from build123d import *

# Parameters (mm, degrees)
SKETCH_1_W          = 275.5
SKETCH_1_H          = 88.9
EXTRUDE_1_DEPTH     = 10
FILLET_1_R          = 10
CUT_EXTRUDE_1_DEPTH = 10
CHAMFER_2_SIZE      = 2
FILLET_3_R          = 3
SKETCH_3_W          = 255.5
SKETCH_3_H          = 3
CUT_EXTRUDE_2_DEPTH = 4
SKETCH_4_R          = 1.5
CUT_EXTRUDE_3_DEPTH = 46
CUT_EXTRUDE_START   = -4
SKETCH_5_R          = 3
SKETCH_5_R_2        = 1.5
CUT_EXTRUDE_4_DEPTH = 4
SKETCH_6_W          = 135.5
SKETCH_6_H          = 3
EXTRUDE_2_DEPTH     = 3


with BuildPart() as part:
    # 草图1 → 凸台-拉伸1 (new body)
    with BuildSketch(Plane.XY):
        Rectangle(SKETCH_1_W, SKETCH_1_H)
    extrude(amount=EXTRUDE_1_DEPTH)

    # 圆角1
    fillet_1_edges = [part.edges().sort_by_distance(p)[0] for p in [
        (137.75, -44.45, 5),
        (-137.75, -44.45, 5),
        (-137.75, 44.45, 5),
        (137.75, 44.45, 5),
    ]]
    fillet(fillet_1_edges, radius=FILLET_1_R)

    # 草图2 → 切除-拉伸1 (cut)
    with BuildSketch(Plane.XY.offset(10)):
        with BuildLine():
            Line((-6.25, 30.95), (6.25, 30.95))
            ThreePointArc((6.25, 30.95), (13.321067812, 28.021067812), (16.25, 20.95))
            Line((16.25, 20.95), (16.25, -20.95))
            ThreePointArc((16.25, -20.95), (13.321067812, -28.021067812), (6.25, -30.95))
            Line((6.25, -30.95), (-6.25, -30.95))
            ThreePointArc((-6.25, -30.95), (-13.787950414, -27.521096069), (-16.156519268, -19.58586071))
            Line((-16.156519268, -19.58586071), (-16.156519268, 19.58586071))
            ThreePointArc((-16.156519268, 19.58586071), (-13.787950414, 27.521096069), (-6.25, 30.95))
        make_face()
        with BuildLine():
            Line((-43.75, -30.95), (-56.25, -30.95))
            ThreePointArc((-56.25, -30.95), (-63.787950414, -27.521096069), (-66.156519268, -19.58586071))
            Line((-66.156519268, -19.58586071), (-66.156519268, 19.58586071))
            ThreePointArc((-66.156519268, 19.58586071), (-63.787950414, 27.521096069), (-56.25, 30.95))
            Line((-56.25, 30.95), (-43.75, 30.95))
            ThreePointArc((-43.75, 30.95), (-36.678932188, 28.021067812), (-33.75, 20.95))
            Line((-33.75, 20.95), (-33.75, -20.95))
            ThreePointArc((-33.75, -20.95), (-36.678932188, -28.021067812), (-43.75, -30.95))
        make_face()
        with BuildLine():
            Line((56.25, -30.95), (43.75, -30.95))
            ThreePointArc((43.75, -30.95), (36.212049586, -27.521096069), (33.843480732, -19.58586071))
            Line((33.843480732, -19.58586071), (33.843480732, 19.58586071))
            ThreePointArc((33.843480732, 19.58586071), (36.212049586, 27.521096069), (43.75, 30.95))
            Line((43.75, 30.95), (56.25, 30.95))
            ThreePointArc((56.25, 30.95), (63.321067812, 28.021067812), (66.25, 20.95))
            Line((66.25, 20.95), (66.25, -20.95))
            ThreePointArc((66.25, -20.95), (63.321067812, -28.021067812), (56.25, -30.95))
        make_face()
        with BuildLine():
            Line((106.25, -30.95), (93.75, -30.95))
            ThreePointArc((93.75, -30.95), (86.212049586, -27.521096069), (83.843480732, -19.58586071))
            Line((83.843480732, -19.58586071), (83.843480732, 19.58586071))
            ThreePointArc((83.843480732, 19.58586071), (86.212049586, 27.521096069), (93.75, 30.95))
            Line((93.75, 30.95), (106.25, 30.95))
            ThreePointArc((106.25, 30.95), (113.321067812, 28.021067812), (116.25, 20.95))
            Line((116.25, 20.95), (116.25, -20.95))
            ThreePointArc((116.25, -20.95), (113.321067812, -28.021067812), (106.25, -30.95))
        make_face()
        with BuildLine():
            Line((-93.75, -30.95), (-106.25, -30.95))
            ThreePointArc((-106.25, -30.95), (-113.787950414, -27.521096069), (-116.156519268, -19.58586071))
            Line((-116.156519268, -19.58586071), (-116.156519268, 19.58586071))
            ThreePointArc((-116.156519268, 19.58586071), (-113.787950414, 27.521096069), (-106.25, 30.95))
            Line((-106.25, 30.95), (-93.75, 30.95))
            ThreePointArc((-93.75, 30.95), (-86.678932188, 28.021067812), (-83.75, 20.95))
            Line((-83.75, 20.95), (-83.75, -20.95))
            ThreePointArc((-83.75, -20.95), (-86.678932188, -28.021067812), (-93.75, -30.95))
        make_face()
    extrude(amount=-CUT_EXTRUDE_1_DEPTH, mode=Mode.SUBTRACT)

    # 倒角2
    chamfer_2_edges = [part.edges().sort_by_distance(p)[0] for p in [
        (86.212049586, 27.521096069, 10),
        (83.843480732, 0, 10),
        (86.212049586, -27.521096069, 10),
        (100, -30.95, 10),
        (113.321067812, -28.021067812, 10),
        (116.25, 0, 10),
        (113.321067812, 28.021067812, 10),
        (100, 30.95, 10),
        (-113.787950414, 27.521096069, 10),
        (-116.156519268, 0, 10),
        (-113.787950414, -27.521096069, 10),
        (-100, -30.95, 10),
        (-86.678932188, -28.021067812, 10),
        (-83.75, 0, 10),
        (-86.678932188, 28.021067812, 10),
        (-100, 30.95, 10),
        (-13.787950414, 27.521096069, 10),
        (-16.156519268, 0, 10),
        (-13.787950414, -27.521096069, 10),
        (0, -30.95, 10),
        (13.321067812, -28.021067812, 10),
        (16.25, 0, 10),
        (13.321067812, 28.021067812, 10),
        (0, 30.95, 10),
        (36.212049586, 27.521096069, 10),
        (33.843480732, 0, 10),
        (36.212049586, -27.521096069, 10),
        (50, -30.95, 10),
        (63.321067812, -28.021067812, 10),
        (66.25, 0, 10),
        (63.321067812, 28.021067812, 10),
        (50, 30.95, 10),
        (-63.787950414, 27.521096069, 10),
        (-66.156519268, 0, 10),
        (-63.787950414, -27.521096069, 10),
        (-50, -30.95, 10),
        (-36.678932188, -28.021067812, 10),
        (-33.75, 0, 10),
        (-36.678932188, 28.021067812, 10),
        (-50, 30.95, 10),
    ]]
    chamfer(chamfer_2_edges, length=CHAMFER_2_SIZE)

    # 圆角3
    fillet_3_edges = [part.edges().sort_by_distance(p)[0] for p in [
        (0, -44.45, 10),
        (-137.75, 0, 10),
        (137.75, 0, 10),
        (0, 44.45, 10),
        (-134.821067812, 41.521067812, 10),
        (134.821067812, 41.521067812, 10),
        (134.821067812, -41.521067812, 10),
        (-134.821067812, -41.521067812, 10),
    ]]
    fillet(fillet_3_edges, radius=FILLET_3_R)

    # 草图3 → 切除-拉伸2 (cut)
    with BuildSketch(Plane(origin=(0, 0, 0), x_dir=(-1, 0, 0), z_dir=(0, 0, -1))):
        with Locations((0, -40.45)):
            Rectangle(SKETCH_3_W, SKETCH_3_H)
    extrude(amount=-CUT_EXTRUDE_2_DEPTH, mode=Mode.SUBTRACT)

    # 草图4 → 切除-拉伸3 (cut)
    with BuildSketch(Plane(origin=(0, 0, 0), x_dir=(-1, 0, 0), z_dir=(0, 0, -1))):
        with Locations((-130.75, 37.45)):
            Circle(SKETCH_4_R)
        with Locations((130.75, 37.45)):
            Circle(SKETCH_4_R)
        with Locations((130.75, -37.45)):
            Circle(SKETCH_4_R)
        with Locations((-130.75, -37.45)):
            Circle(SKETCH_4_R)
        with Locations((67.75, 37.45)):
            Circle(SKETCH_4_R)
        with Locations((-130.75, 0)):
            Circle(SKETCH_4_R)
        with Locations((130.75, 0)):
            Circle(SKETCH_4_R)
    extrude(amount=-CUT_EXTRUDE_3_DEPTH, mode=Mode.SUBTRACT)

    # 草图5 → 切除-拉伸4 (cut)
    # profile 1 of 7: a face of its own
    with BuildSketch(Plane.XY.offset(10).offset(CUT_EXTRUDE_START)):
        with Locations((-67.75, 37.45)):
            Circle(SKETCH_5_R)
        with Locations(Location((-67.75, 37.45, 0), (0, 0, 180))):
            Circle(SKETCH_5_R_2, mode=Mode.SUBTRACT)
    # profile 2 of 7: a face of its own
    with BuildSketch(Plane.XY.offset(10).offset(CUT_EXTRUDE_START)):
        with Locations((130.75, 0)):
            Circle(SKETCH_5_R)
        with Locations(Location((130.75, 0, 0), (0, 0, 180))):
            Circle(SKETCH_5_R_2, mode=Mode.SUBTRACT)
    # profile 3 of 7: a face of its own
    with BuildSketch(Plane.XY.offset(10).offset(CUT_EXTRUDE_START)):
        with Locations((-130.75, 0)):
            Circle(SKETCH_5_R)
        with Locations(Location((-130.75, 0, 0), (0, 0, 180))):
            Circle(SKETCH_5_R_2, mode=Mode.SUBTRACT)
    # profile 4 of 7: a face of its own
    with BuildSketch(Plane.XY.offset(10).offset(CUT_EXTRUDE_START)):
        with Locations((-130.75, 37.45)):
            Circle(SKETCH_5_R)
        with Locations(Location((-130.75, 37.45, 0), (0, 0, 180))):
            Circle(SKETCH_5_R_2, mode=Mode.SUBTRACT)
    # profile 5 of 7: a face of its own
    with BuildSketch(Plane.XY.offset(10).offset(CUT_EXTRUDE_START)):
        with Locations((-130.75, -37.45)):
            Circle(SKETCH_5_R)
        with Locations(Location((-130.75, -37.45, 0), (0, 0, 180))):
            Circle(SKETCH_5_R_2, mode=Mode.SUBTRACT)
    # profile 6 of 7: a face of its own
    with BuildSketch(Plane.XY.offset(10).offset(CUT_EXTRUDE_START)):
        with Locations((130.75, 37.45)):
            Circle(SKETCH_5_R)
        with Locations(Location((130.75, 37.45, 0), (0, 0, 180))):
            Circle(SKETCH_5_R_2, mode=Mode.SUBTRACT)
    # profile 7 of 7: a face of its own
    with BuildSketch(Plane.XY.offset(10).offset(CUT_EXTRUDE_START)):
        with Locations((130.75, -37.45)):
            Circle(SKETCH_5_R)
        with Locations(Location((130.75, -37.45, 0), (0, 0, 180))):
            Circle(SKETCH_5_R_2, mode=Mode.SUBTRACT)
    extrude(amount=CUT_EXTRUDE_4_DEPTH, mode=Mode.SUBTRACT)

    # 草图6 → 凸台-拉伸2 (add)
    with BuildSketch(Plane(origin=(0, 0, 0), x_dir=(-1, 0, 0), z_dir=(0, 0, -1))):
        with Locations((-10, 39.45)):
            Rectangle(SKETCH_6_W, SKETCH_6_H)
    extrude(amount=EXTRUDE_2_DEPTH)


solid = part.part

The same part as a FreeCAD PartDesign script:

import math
import FreeCAD as App
import Part
import Sketcher

V = App.Vector


def edges_at(feature, points):
    """Names of the edges that pass closest to the given points."""
    edges = feature.Shape.Edges
    near = lambda p: min(range(len(edges)), key=lambda i: edges[i].distToShape(Part.Vertex(*p))[0])
    return sorted({f"Edge{near(p) + 1}" for p in points})

doc = App.newDocument("Part")
body = doc.addObject("PartDesign::Body", "Body")

sketch1 = doc.addObject("Sketcher::SketchObject", "Sketch")
body.addObject(sketch1)
sketch1.AttachmentSupport = (doc.XY_Plane, [""])
sketch1.MapMode = "FlatFace"
sketch1.addGeometry([
    Part.LineSegment(V(-138, 44, 0), V(-138, -44, 0)),
    Part.LineSegment(V(-138, -44, 0), V(138, -44, 0)),
    Part.LineSegment(V(138, -44, 0), V(138, 44, 0)),
    Part.LineSegment(V(138, 44, 0), V(-138, 44, 0)),
], False)
sketch1.addConstraint([
    Sketcher.Constraint("Coincident", 0, 2, 1, 1),
    Sketcher.Constraint("Coincident", 1, 2, 2, 1),
    Sketcher.Constraint("Coincident", 2, 2, 3, 1),
    Sketcher.Constraint("Coincident", 3, 2, 0, 1),
    Sketcher.Constraint("Vertical", 0),
    Sketcher.Constraint("Horizontal", 1),
    Sketcher.Constraint("Vertical", 2),
    Sketcher.Constraint("Horizontal", 3),
    Sketcher.Constraint("Symmetric", 0, 2, 2, 2, -1, 1),
    Sketcher.Constraint("DistanceX", 1, 1, 1, 2, 275.5),
    Sketcher.Constraint("DistanceY", 0, 2, 0, 1, 88.9),
])
pad1 = doc.addObject("PartDesign::Pad", "Pad")
body.addObject(pad1)
pad1.Profile = sketch1
pad1.Length = 10
doc.recompute()

fillet = doc.addObject("PartDesign::Fillet", "Fillet")
body.addObject(fillet)
fillet.Base = (pad1, edges_at(pad1, [
    (137.75, -44.45, 5),
    (-137.75, -44.45, 5),
    (-137.75, 44.45, 5),
    (137.75, 44.45, 5),
]))
fillet.Radius = 10

sketch2 = doc.addObject("Sketcher::SketchObject", "Sketch001")
body.addObject(sketch2)
sketch2.AttachmentSupport = (doc.XY_Plane, [""])
sketch2.MapMode = "FlatFace"
sketch2.AttachmentOffset = App.Placement(V(0, 0, 10), App.Rotation())
sketch2.addGeometry([
    Part.LineSegment(V(6, 31, 0), V(-6, 31, 0)),
    Part.ArcOfCircle(Part.Circle(V(-6, 21, 0), V(0, 0, 1), 10), math.radians(90), math.radians(188)),
    Part.LineSegment(V(-16, 20, 0), V(-16, -20, 0)),
    Part.ArcOfCircle(Part.Circle(V(-6, -21, 0), V(0, 0, 1), 10), math.radians(172), math.radians(270)),
    Part.LineSegment(V(-6, -31, 0), V(6, -31, 0)),
    Part.ArcOfCircle(Part.Circle(V(6, -21, 0), V(0, 0, 1), 10), math.radians(-90), math.radians(0)),
    Part.LineSegment(V(16, -21, 0), V(16, 21, 0)),
    Part.ArcOfCircle(Part.Circle(V(6, 21, 0), V(0, 0, 1), 10), math.radians(0), math.radians(90)),
    Part.LineSegment(V(-56, -31, 0), V(-44, -31, 0)),
    Part.ArcOfCircle(Part.Circle(V(-44, -21, 0), V(0, 0, 1), 10), math.radians(-90), math.radians(0)),
    Part.LineSegment(V(-34, -21, 0), V(-34, 21, 0)),
    Part.ArcOfCircle(Part.Circle(V(-44, 21, 0), V(0, 0, 1), 10), math.radians(0), math.radians(90)),
    Part.LineSegment(V(-44, 31, 0), V(-56, 31, 0)),
    Part.ArcOfCircle(Part.Circle(V(-56, 21, 0), V(0, 0, 1), 10), math.radians(90), math.radians(188)),
    Part.LineSegment(V(-66, 20, 0), V(-66, -20, 0)),
    Part.ArcOfCircle(Part.Circle(V(-56, -21, 0), V(0, 0, 1), 10), math.radians(172), math.radians(270)),
    Part.LineSegment(V(44, -31, 0), V(56, -31, 0)),
    Part.ArcOfCircle(Part.Circle(V(56, -21, 0), V(0, 0, 1), 10), math.radians(-90), math.radians(0)),
    Part.LineSegment(V(66, -21, 0), V(66, 21, 0)),
    Part.ArcOfCircle(Part.Circle(V(56, 21, 0), V(0, 0, 1), 10), math.radians(0), math.radians(90)),
    Part.LineSegment(V(56, 31, 0), V(44, 31, 0)),
    Part.ArcOfCircle(Part.Circle(V(44, 21, 0), V(0, 0, 1), 10), math.radians(90), math.radians(188)),
    Part.LineSegment(V(34, 20, 0), V(34, -20, 0)),
    Part.ArcOfCircle(Part.Circle(V(44, -21, 0), V(0, 0, 1), 10), math.radians(172), math.radians(270)),
    Part.LineSegment(V(94, -31, 0), V(106, -31, 0)),
    Part.ArcOfCircle(Part.Circle(V(106, -21, 0), V(0, 0, 1), 10), math.radians(-90), math.radians(0)),
    Part.LineSegment(V(116, -21, 0), V(116, 21, 0)),
    Part.ArcOfCircle(Part.Circle(V(106, 21, 0), V(0, 0, 1), 10), math.radians(0), math.radians(90)),
    Part.LineSegment(V(106, 31, 0), V(94, 31, 0)),
    Part.ArcOfCircle(Part.Circle(V(94, 21, 0), V(0, 0, 1), 10), math.radians(90), math.radians(188)),
    Part.LineSegment(V(84, 20, 0), V(84, -20, 0)),
    Part.ArcOfCircle(Part.Circle(V(94, -21, 0), V(0, 0, 1), 10), math.radians(172), math.radians(270)),
    Part.LineSegment(V(-106, -31, 0), V(-94, -31, 0)),
    Part.ArcOfCircle(Part.Circle(V(-94, -21, 0), V(0, 0, 1), 10), math.radians(-90), math.radians(0)),
    Part.LineSegment(V(-84, -21, 0), V(-84, 21, 0)),
    Part.ArcOfCircle(Part.Circle(V(-94, 21, 0), V(0, 0, 1), 10), math.radians(0), math.radians(90)),
    Part.LineSegment(V(-94, 31, 0), V(-106, 31, 0)),
    Part.ArcOfCircle(Part.Circle(V(-106, 21, 0), V(0, 0, 1), 10), math.radians(90), math.radians(188)),
    Part.LineSegment(V(-116, 20, 0), V(-116, -20, 0)),
    Part.ArcOfCircle(Part.Circle(V(-106, -21, 0), V(0, 0, 1), 10), math.radians(172), math.radians(270)),
], False)
sketch2.addConstraint([
    Sketcher.Constraint("Tangent", 0, 2, 1, 1),
    Sketcher.Constraint("Coincident", 1, 2, 2, 1),
    Sketcher.Constraint("Coincident", 2, 2, 3, 1),
    Sketcher.Constraint("Tangent", 3, 2, 4, 1),
    Sketcher.Constraint("Tangent", 4, 2, 5, 1),
    Sketcher.Constraint("Tangent", 5, 2, 6, 1),
    Sketcher.Constraint("Tangent", 6, 2, 7, 1),
    Sketcher.Constraint("Tangent", 7, 2, 0, 1),
    Sketcher.Constraint("Tangent", 8, 2, 9, 1),
    Sketcher.Constraint("Tangent", 9, 2, 10, 1),
    Sketcher.Constraint("Tangent", 10, 2, 11, 1),
    Sketcher.Constraint("Tangent", 11, 2, 12, 1),
    Sketcher.Constraint("Tangent", 12, 2, 13, 1),
    Sketcher.Constraint("Coincident", 13, 2, 14, 1),
    Sketcher.Constraint("Coincident", 14, 2, 15, 1),
    Sketcher.Constraint("Tangent", 15, 2, 8, 1),
    Sketcher.Constraint("Tangent", 16, 2, 17, 1),
    Sketcher.Constraint("Tangent", 17, 2, 18, 1),
    Sketcher.Constraint("Tangent", 18, 2, 19, 1),
    Sketcher.Constraint("Tangent", 19, 2, 20, 1),
    Sketcher.Constraint("Tangent", 20, 2, 21, 1),
    Sketcher.Constraint("Coincident", 21, 2, 22, 1),
    Sketcher.Constraint("Coincident", 22, 2, 23, 1),
    Sketcher.Constraint("Tangent", 23, 2, 16, 1),
    Sketcher.Constraint("Tangent", 24, 2, 25, 1),
    Sketcher.Constraint("Tangent", 25, 2, 26, 1),
    Sketcher.Constraint("Tangent", 26, 2, 27, 1),
    Sketcher.Constraint("Tangent", 27, 2, 28, 1),
    Sketcher.Constraint("Tangent", 28, 2, 29, 1),
    Sketcher.Constraint("Coincident", 29, 2, 30, 1),
    Sketcher.Constraint("Coincident", 30, 2, 31, 1),
    Sketcher.Constraint("Tangent", 31, 2, 24, 1),
    Sketcher.Constraint("Tangent", 32, 2, 33, 1),
    Sketcher.Constraint("Tangent", 33, 2, 34, 1),
    Sketcher.Constraint("Tangent", 34, 2, 35, 1),
    Sketcher.Constraint("Tangent", 35, 2, 36, 1),
    Sketcher.Constraint("Tangent", 36, 2, 37, 1),
    Sketcher.Constraint("Coincident", 37, 2, 38, 1),
    Sketcher.Constraint("Coincident", 38, 2, 39, 1),
    Sketcher.Constraint("Tangent", 39, 2, 32, 1),
    Sketcher.Constraint("Horizontal", 0),
    Sketcher.Constraint("Vertical", 2),
    Sketcher.Constraint("Horizontal", 4),
    Sketcher.Constraint("Vertical", 6),
    Sketcher.Constraint("Horizontal", 8),
    Sketcher.Constraint("Vertical", 10),
    Sketcher.Constraint("Horizontal", 12),
    Sketcher.Constraint("Vertical", 14),
    Sketcher.Constraint("Horizontal", 16),
    Sketcher.Constraint("Vertical", 18),
    Sketcher.Constraint("Horizontal", 20),
    Sketcher.Constraint("Vertical", 22),
    Sketcher.Constraint("Horizontal", 24),
    Sketcher.Constraint("Vertical", 26),
    Sketcher.Constraint("Horizontal", 28),
    Sketcher.Constraint("Vertical", 30),
    Sketcher.Constraint("Horizontal", 32),
    Sketcher.Constraint("Vertical", 34),
    Sketcher.Constraint("Horizontal", 36),
    Sketcher.Constraint("Vertical", 38),
    Sketcher.Constraint("Equal", 1, 3),
    Sketcher.Constraint("Equal", 3, 5),
    Sketcher.Constraint("Equal", 5, 7),
    Sketcher.Constraint("Equal", 7, 9),
    Sketcher.Constraint("Equal", 9, 11),
    Sketcher.Constraint("Equal", 11, 13),
    Sketcher.Constraint("Equal", 13, 15),
    Sketcher.Constraint("Equal", 15, 17),
    Sketcher.Constraint("Equal", 17, 19),
    Sketcher.Constraint("Equal", 19, 21),
    Sketcher.Constraint("Equal", 21, 23),
    Sketcher.Constraint("Equal", 23, 25),
    Sketcher.Constraint("Equal", 25, 27),
    Sketcher.Constraint("Equal", 27, 29),
    Sketcher.Constraint("Equal", 29, 31),
    Sketcher.Constraint("Equal", 31, 33),
    Sketcher.Constraint("Equal", 33, 35),
    Sketcher.Constraint("Equal", 35, 37),
    Sketcher.Constraint("Equal", 37, 39),
    Sketcher.Constraint("Symmetric", 1, 3, 5, 3, -1, 1),
    Sketcher.Constraint("Symmetric", 13, 3, 17, 3, -1, 1),
    Sketcher.Constraint("Symmetric", 15, 3, 19, 3, -1, 1),
    Sketcher.Constraint("Symmetric", 29, 3, 33, 3, -1, 1),
    Sketcher.Constraint("Symmetric", 31, 3, 35, 3, -1, 1),
    Sketcher.Constraint("Symmetric", 11, 3, 21, 3, -2),
    Sketcher.Constraint("Symmetric", 27, 3, 37, 3, -2),
    Sketcher.Constraint("Horizontal", 5, 3, 9, 3),
    Sketcher.Constraint("Horizontal", 23, 3, 25, 3),
    Sketcher.Constraint("Horizontal", 1, 2, 13, 2),
    Sketcher.Constraint("Horizontal", 2, 2, 14, 2),
    Sketcher.Constraint("Horizontal", 13, 2, 21, 2),
    Sketcher.Constraint("Horizontal", 14, 2, 22, 2),
    Sketcher.Constraint("Horizontal", 21, 2, 29, 2),
    Sketcher.Constraint("Horizontal", 29, 2, 37, 2),
    Sketcher.Constraint("Horizontal", 30, 2, 38, 2),
    Sketcher.Constraint("Equal", 4, 8),
    Sketcher.Constraint("Equal", 20, 24),
    Sketcher.Constraint("Radius", 1, 10.0),
    Sketcher.Constraint("DistanceX", 0, 2, 0, 1, 12.5),
    Sketcher.Constraint("DistanceY", 6, 1, 6, 2, 41.9),
    Sketcher.Constraint("DistanceX", 9, 3, 5, 3, 50.0),
    Sketcher.Constraint("DistanceX", 17, 3, 25, 3, 50.0),
    Sketcher.Constraint("DistanceY", 2, 2, 2, 1, 39.171721),
])
pocket1 = doc.addObject("PartDesign::Pocket", "Pocket")
body.addObject(pocket1)
pocket1.Profile = sketch2
pocket1.Length = 10
doc.recompute()

chamfer = doc.addObject("PartDesign::Chamfer", "Chamfer")
body.addObject(chamfer)
chamfer.Base = (pocket1, edges_at(pocket1, [
    (86.212, 27.521, 10),
    (83.843, 0, 10),
    (86.212, -27.521, 10),
    (100, -30.95, 10),
    (113.321, -28.021, 10),
    (116.25, 0, 10),
    (113.321, 28.021, 10),
    (100, 30.95, 10),
    (-113.788, 27.521, 10),
    (-116.157, 0, 10),
    (-113.788, -27.521, 10),
    (-100, -30.95, 10),
    (-86.679, -28.021, 10),
    (-83.75, 0, 10),
    (-86.679, 28.021, 10),
    (-100, 30.95, 10),
    (-13.788, 27.521, 10),
    (-16.157, 0, 10),
    (-13.788, -27.521, 10),
    (0, -30.95, 10),
    (13.321, -28.021, 10),
    (16.25, 0, 10),
    (13.321, 28.021, 10),
    (0, 30.95, 10),
    (36.212, 27.521, 10),
    (33.843, 0, 10),
    (36.212, -27.521, 10),
    (50, -30.95, 10),
    (63.321, -28.021, 10),
    (66.25, 0, 10),
    (63.321, 28.021, 10),
    (50, 30.95, 10),
    (-63.788, 27.521, 10),
    (-66.157, 0, 10),
    (-63.788, -27.521, 10),
    (-50, -30.95, 10),
    (-36.679, -28.021, 10),
    (-33.75, 0, 10),
    (-36.679, 28.021, 10),
    (-50, 30.95, 10),
]))
chamfer.Size = 2
doc.recompute()

fillet2 = doc.addObject("PartDesign::Fillet", "Fillet001")
body.addObject(fillet2)
fillet2.Base = (chamfer, edges_at(chamfer, [
    (0, -44.45, 10),
    (-137.75, 0, 10),
    (137.75, 0, 10),
    (0, 44.45, 10),
    (-134.821, 41.521, 10),
    (134.821, 41.521, 10),
    (134.821, -41.521, 10),
    (-134.821, -41.521, 10),
]))
fillet2.Radius = 3

sketch3 = doc.addObject("Sketcher::SketchObject", "Sketch002")
body.addObject(sketch3)
sketch3.AttachmentSupport = (doc.XY_Plane, [""])
sketch3.MapMode = "FlatFace"
sketch3.addGeometry([
    Part.LineSegment(V(127.8, -39, 0), V(127.8, -42, 0)),
    Part.LineSegment(V(127.8, -42, 0), V(-127.8, -42, 0)),
    Part.LineSegment(V(-127.8, -42, 0), V(-127.8, -39, 0)),
    Part.LineSegment(V(-127.8, -39, 0), V(127.8, -39, 0)),
], False)
sketch3.addConstraint([
    Sketcher.Constraint("Coincident", 0, 2, 1, 1),
    Sketcher.Constraint("Coincident", 1, 2, 2, 1),
    Sketcher.Constraint("Coincident", 2, 2, 3, 1),
    Sketcher.Constraint("Coincident", 3, 2, 0, 1),
    Sketcher.Constraint("Vertical", 0),
    Sketcher.Constraint("Horizontal", 1),
    Sketcher.Constraint("Vertical", 2),
    Sketcher.Constraint("Horizontal", 3),
    Sketcher.Constraint("DistanceY", 0, 2, 0, 1, 3.0),
    Sketcher.Constraint("DistanceX", 1, 2, 1, 1, 255.5),
    Sketcher.Constraint("DistanceX", -1, 1, 0, 2, 127.75),
    Sketcher.Constraint("DistanceY", 0, 2, -1, 1, 41.95),
])
pocket2 = doc.addObject("PartDesign::Pocket", "Pocket001")
body.addObject(pocket2)
pocket2.Profile = sketch3
pocket2.Length = 4
pocket2.Reversed = True

sketch4 = doc.addObject("Sketcher::SketchObject", "Sketch003")
body.addObject(sketch4)
sketch4.AttachmentSupport = (doc.XY_Plane, [""])
sketch4.MapMode = "FlatFace"
sketch4.addGeometry([
    Part.Circle(V(130.8, 37.5, 0), V(0, 0, 1), 1.5),
    Part.Circle(V(-130.8, 37.5, 0), V(0, 0, 1), 1.5),
    Part.Circle(V(-130.8, -37.5, 0), V(0, 0, 1), 1.5),
    Part.Circle(V(130.8, -37.5, 0), V(0, 0, 1), 1.5),
    Part.Circle(V(-67.8, 37.5, 0), V(0, 0, 1), 1.5),
    Part.Circle(V(130.8, 0, 0), V(0, 0, 1), 1.5),
    Part.Circle(V(-130.8, 0, 0), V(0, 0, 1), 1.5),
], False)
sketch4.addConstraint([
    Sketcher.Constraint("Equal", 0, 1),
    Sketcher.Constraint("Equal", 1, 2),
    Sketcher.Constraint("Equal", 2, 3),
    Sketcher.Constraint("Equal", 3, 4),
    Sketcher.Constraint("Equal", 4, 5),
    Sketcher.Constraint("Equal", 5, 6),
    Sketcher.Constraint("Symmetric", 0, 3, 2, 3, -1, 1),
    Sketcher.Constraint("Symmetric", 1, 3, 3, 3, -1, 1),
    Sketcher.Constraint("Symmetric", 5, 3, 6, 3, -1, 1),
    Sketcher.Constraint("Symmetric", 0, 3, 1, 3, -2),
    Sketcher.Constraint("PointOnObject", 5, 3, -1),
    Sketcher.Constraint("Horizontal", 1, 3, 4, 3),
    Sketcher.Constraint("Vertical", 3, 3, 5, 3),
    Sketcher.Constraint("Diameter", 0, 3.0),
    Sketcher.Constraint("DistanceX", 1, 3, 4, 3, 63.0),
    Sketcher.Constraint("DistanceX", 1, 3, 0, 3, 261.5),
    Sketcher.Constraint("DistanceY", 2, 3, 1, 3, 74.9),
])
pocket3 = doc.addObject("PartDesign::Pocket", "Pocket002")
body.addObject(pocket3)
pocket3.Profile = sketch4
pocket3.Length = 46
pocket3.Reversed = True

sketch5 = doc.addObject("Sketcher::SketchObject", "Sketch004")
body.addObject(sketch5)
sketch5.AttachmentSupport = (doc.XY_Plane, [""])
sketch5.MapMode = "FlatFace"
sketch5.AttachmentOffset = App.Placement(V(0, 0, 6), App.Rotation())
sketch5.addGeometry([
    Part.Circle(V(-67.8, 37.5, 0), V(0, 0, 1), 3),
    Part.Circle(V(-67.8, 37.5, 0), V(0, 0, 1), 1.5),
    Part.Circle(V(130.8, 0, 0), V(0, 0, 1), 3),
    Part.Circle(V(130.8, 0, 0), V(0, 0, 1), 1.5),
    Part.Circle(V(-130.8, 0, 0), V(0, 0, 1), 3),
    Part.Circle(V(-130.8, 0, 0), V(0, 0, 1), 1.5),
    Part.Circle(V(-130.8, 37.5, 0), V(0, 0, 1), 3),
    Part.Circle(V(-130.8, 37.5, 0), V(0, 0, 1), 1.5),
    Part.Circle(V(-130.8, -37.5, 0), V(0, 0, 1), 3),
    Part.Circle(V(-130.8, -37.5, 0), V(0, 0, 1), 1.5),
    Part.Circle(V(130.8, 37.5, 0), V(0, 0, 1), 3),
    Part.Circle(V(130.8, 37.5, 0), V(0, 0, 1), 1.5),
    Part.Circle(V(130.8, -37.5, 0), V(0, 0, 1), 3),
    Part.Circle(V(130.8, -37.5, 0), V(0, 0, 1), 1.5),
], False)
sketch5.addConstraint([
    Sketcher.Constraint("Coincident", 1, 3, 0, 3),
    Sketcher.Constraint("Coincident", 3, 3, 2, 3),
    Sketcher.Constraint("Coincident", 5, 3, 4, 3),
    Sketcher.Constraint("Coincident", 7, 3, 6, 3),
    Sketcher.Constraint("Coincident", 9, 3, 8, 3),
    Sketcher.Constraint("Coincident", 11, 3, 10, 3),
    Sketcher.Constraint("Coincident", 13, 3, 12, 3),
    Sketcher.Constraint("Equal", 0, 2),
    Sketcher.Constraint("Equal", 1, 3),
    Sketcher.Constraint("Equal", 2, 4),
    Sketcher.Constraint("Equal", 3, 5),
    Sketcher.Constraint("Equal", 4, 6),
    Sketcher.Constraint("Equal", 5, 7),
    Sketcher.Constraint("Equal", 6, 8),
    Sketcher.Constraint("Equal", 7, 9),
    Sketcher.Constraint("Equal", 8, 10),
    Sketcher.Constraint("Equal", 9, 11),
    Sketcher.Constraint("Equal", 10, 12),
    Sketcher.Constraint("Equal", 11, 13),
    Sketcher.Constraint("Symmetric", 2, 3, 4, 3, -1, 1),
    Sketcher.Constraint("Symmetric", 8, 3, 10, 3, -1, 1),
    Sketcher.Constraint("Symmetric", 6, 3, 12, 3, -1, 1),
    Sketcher.Constraint("Symmetric", 6, 3, 10, 3, -2),
    Sketcher.Constraint("PointOnObject", 2, 3, -1),
    Sketcher.Constraint("Horizontal", 1, 3, 6, 3),
    Sketcher.Constraint("Vertical", 5, 3, 6, 3),
    Sketcher.Constraint("Diameter", 0, 6.0),
    Sketcher.Constraint("Diameter", 1, 3.0),
    Sketcher.Constraint("DistanceX", 4, 3, 0, 3, 63.0),
    Sketcher.Constraint("DistanceX", 0, 3, 2, 3, 198.5),
    Sketcher.Constraint("DistanceY", 8, 3, 6, 3, 74.9),
])
pocket4 = doc.addObject("PartDesign::Pocket", "Pocket003")
body.addObject(pocket4)
pocket4.Profile = sketch5
pocket4.Length = 4
pocket4.Reversed = True

sketch6 = doc.addObject("Sketcher::SketchObject", "Sketch005")
body.addObject(sketch6)
sketch6.AttachmentSupport = (doc.XY_Plane, [""])
sketch6.MapMode = "FlatFace"
sketch6.addGeometry([
    Part.LineSegment(V(77.8, 41, 0), V(77.8, 38, 0)),
    Part.LineSegment(V(77.8, 38, 0), V(-57.8, 38, 0)),
    Part.LineSegment(V(-57.8, 38, 0), V(-57.8, 41, 0)),
    Part.LineSegment(V(-57.8, 41, 0), V(77.8, 41, 0)),
], False)
sketch6.addConstraint([
    Sketcher.Constraint("Coincident", 0, 2, 1, 1),
    Sketcher.Constraint("Coincident", 1, 2, 2, 1),
    Sketcher.Constraint("Coincident", 2, 2, 3, 1),
    Sketcher.Constraint("Coincident", 3, 2, 0, 1),
    Sketcher.Constraint("Vertical", 0),
    Sketcher.Constraint("Horizontal", 1),
    Sketcher.Constraint("Vertical", 2),
    Sketcher.Constraint("Horizontal", 3),
    Sketcher.Constraint("DistanceY", 0, 2, 0, 1, 3.0),
    Sketcher.Constraint("DistanceX", 1, 2, 1, 1, 135.5),
    Sketcher.Constraint("DistanceX", -1, 1, 0, 2, 77.75),
    Sketcher.Constraint("DistanceY", -1, 1, 0, 2, 37.95),
])
pad2 = doc.addObject("PartDesign::Pad", "Pad001")
body.addObject(pad2)
pad2.Profile = sketch6
pad2.Length = 3
pad2.Reversed = True

doc.recompute()
